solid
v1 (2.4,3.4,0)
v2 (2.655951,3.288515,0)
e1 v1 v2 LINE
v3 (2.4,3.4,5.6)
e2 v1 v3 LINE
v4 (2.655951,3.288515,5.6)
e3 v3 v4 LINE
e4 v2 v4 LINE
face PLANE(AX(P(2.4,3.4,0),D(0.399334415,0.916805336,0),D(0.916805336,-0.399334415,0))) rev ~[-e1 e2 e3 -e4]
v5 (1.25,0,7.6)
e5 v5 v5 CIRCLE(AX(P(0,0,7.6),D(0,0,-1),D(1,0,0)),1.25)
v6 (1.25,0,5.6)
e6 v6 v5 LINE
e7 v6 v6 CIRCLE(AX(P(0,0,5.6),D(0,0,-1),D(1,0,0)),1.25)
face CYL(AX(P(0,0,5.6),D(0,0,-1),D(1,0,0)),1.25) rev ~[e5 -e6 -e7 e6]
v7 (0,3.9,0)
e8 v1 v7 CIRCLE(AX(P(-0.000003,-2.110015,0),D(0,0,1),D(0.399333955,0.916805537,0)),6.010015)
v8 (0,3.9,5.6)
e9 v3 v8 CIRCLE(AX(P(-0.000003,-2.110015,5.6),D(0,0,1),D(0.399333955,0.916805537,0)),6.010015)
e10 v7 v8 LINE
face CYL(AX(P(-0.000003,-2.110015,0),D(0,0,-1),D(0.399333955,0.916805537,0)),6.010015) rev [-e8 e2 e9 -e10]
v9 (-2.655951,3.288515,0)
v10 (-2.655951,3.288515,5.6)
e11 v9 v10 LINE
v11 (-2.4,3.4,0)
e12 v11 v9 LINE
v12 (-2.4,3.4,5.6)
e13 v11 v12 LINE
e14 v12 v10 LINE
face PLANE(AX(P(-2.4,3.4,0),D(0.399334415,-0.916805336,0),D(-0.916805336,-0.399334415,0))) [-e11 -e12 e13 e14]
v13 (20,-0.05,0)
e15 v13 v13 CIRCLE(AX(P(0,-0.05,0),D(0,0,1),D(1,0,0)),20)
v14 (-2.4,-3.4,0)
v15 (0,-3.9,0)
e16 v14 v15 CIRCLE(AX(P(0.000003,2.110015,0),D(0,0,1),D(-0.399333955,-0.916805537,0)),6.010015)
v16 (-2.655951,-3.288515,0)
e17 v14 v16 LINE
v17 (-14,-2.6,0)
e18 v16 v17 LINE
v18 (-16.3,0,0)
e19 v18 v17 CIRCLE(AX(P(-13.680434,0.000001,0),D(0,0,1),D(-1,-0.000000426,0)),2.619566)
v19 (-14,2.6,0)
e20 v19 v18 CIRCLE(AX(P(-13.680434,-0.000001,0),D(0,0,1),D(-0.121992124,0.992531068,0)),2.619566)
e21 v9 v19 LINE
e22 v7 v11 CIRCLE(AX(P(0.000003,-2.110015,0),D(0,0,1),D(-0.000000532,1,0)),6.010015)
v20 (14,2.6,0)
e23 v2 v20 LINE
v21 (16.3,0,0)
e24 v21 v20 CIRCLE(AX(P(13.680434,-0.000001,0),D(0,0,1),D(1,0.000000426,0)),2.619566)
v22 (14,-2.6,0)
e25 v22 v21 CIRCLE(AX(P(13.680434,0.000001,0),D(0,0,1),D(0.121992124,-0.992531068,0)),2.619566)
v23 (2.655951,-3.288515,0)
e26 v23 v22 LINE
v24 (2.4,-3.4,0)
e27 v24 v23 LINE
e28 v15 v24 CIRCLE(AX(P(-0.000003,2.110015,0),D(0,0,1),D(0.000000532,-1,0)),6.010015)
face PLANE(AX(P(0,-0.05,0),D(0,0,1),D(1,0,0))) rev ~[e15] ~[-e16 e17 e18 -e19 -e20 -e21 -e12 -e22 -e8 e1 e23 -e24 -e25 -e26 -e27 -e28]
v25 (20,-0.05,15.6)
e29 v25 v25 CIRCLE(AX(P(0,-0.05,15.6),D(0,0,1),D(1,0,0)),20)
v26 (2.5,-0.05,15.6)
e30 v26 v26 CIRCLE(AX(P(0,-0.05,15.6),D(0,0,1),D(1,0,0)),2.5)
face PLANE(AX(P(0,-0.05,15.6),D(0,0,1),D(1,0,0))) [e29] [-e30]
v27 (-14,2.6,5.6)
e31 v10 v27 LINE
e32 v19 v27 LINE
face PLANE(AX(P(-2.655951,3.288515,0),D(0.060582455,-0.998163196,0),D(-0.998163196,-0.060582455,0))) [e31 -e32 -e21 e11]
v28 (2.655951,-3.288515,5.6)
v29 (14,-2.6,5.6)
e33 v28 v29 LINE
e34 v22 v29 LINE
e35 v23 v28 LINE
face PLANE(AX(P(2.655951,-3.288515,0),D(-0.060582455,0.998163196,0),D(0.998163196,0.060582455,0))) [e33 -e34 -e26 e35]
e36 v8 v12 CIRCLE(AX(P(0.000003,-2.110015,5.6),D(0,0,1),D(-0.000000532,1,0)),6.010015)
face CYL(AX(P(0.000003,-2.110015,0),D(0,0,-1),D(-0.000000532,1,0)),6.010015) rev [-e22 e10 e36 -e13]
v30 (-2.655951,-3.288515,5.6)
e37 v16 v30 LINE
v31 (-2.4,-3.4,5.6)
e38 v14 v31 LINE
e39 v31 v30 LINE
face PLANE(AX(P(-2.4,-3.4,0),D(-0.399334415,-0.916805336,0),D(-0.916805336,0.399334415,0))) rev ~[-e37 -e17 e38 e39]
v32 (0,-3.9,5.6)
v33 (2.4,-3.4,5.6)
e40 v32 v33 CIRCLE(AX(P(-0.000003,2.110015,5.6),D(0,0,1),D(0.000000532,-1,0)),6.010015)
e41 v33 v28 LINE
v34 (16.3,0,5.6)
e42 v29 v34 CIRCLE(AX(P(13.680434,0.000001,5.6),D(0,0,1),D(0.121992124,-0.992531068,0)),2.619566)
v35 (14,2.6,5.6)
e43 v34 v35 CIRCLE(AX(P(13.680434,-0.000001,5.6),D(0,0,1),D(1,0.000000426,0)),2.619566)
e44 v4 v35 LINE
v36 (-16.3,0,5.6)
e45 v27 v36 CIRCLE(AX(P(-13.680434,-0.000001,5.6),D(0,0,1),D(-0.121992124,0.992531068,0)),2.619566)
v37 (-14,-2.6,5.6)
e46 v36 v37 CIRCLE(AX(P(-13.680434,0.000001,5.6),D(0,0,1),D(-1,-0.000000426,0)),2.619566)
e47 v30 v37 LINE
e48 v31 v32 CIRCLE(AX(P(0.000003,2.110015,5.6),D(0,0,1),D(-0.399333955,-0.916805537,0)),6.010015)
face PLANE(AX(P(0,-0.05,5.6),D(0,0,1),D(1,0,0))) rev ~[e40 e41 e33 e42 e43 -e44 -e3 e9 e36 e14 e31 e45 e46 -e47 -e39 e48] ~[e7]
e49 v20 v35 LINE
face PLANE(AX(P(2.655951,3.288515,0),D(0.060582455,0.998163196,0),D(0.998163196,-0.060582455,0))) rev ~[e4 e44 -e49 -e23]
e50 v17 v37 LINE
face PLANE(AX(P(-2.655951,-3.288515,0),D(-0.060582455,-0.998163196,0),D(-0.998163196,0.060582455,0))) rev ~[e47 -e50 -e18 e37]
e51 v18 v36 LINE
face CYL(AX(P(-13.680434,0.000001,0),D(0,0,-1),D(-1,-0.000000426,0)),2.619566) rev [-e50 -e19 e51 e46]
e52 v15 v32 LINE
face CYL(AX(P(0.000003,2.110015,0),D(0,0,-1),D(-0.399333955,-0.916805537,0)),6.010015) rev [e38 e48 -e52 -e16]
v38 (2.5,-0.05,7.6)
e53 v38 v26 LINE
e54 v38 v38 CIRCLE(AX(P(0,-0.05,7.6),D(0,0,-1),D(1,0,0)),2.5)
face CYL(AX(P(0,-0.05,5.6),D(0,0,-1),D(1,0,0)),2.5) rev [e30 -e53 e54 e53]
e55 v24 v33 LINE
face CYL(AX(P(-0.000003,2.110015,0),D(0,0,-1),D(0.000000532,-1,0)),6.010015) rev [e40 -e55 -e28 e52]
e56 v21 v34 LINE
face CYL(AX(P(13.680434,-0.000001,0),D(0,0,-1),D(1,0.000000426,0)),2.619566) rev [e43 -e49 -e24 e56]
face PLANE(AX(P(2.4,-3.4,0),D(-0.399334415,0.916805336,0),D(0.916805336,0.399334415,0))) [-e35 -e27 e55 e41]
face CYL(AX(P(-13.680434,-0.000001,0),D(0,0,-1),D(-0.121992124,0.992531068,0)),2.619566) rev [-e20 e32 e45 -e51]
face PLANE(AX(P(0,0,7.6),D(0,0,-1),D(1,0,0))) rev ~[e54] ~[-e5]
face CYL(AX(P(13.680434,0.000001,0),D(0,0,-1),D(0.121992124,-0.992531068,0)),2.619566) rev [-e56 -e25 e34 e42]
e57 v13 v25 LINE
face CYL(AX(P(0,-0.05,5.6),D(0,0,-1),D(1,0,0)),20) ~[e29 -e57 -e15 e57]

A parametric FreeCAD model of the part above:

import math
import FreeCAD as App
import Part
import Sketcher

doc = App.newDocument("Part")
params = doc.addObject("Spreadsheet::Sheet", "Params")
for row, (alias, value) in enumerate([
    ("sketch1_diameter", "40 mm"),
    ("pad1_length", "5.6 mm"),
    ("sketch2_diameter", "40 mm"),
    ("sketch2_diameter2", "5 mm"),
    ("pad2_length", "10 mm"),
    ("sketch3_diameter", "2.5 mm"),
    ("sketch3_diameter2", "6.14 mm"),
    ("pad3_length", "2 mm"),
], start=1):
    params.set(f"A{row}", alias)
    params.set(f"B{row}", "=" + value)
    params.setAlias(f"B{row}", alias)

body = doc.addObject("PartDesign::Body", "Body")

sketch1 = doc.addObject("Sketcher::SketchObject", "Sketch")
body.addObject(sketch1)
sketch1.AttachmentSupport = (doc.XY_Plane, [""])
sketch1.MapMode = "FlatFace"
sketch1.addGeometry(Part.Circle(App.Vector(0, -0.05, 0), App.Vector(0, 0, 1), 20), False)
sketch1.addGeometry(Part.ArcOfCircle(Part.Circle(App.Vector(0.000003, -2.110015, 0), App.Vector(0, 0, 1), 6.010015), math.radians(90.00003), math.radians(113.536547)), False)
sketch1.addGeometry(Part.ArcOfCircle(Part.Circle(App.Vector(-0.000003, -2.110015, 0), App.Vector(0, 0, 1), 6.010015), math.radians(66.463453), math.radians(89.99997)), False)
sketch1.addGeometry(Part.LineSegment(App.Vector(2.4, 3.4, 0), App.Vector(2.655951, 3.288515, 0)), False)
sketch1.addGeometry(Part.LineSegment(App.Vector(2.655951, 3.288515, 0), App.Vector(14, 2.6, 0)), False)
sketch1.addGeometry(Part.ArcOfCircle(Part.Circle(App.Vector(13.680434, -0.000001, 0), App.Vector(0, 0, 1), 2.619566), math.radians(0.000024), math.radians(82.992912)), False)
sketch1.addGeometry(Part.ArcOfCircle(Part.Circle(App.Vector(13.680434, 0.000001, 0), App.Vector(0, 0, 1), 2.619566), math.radians(-82.992912), math.radians(-0.000024)), False)
sketch1.addGeometry(Part.LineSegment(App.Vector(14, -2.6, 0), App.Vector(2.655951, -3.288515, 0)), False)
sketch1.addGeometry(Part.LineSegment(App.Vector(2.655951, -3.288515, 0), App.Vector(2.4, -3.4, 0)), False)
sketch1.addGeometry(Part.ArcOfCircle(Part.Circle(App.Vector(-0.000003, 2.110015, 0), App.Vector(0, 0, 1), 6.010015), math.radians(-89.99997), math.radians(-66.463453)), False)
sketch1.addGeometry(Part.ArcOfCircle(Part.Circle(App.Vector(0.000003, 2.110015, 0), App.Vector(0, 0, 1), 6.010015), math.radians(-113.536547), math.radians(-90.00003)), False)
sketch1.addGeometry(Part.LineSegment(App.Vector(-2.4, -3.4, 0), App.Vector(-2.655951, -3.288515, 0)), False)
sketch1.addGeometry(Part.LineSegment(App.Vector(-2.655951, -3.288515, 0), App.Vector(-14, -2.6, 0)), False)
sketch1.addGeometry(Part.ArcOfCircle(Part.Circle(App.Vector(-13.680434, 0.000001, 0), App.Vector(0, 0, 1), 2.619566), math.radians(-179.999976), math.radians(-97.007088)), False)
sketch1.addGeometry(Part.ArcOfCircle(Part.Circle(App.Vector(-13.680434, -0.000001, 0), App.Vector(0, 0, 1), 2.619566), math.radians(97.007088), math.radians(179.999976)), False)
sketch1.addGeometry(Part.LineSegment(App.Vector(-14, 2.6, 0), App.Vector(-2.655951, 3.288515, 0)), False)
sketch1.addGeometry(Part.LineSegment(App.Vector(-2.655951, 3.288515, 0), App.Vector(-2.4, 3.4, 0)), False)
sketch1.addConstraint(Sketcher.Constraint("Coincident", 1, 1, 2, 2))
sketch1.addConstraint(Sketcher.Constraint("Coincident", 2, 1, 3, 1))
sketch1.addConstraint(Sketcher.Constraint("Coincident", 3, 2, 4, 1))
sketch1.addConstraint(Sketcher.Constraint("Coincident", 4, 2, 5, 2))
sketch1.addConstraint(Sketcher.Constraint("Coincident", 5, 1, 6, 2))
sketch1.addConstraint(Sketcher.Constraint("Coincident", 6, 1, 7, 1))
sketch1.addConstraint(Sketcher.Constraint("Coincident", 7, 2, 8, 1))
sketch1.addConstraint(Sketcher.Constraint("Coincident", 8, 2, 9, 2))
sketch1.addConstraint(Sketcher.Constraint("Coincident", 9, 1, 10, 2))
sketch1.addConstraint(Sketcher.Constraint("Coincident", 10, 1, 11, 1))
sketch1.addConstraint(Sketcher.Constraint("Coincident", 11, 2, 12, 1))
sketch1.addConstraint(Sketcher.Constraint("Coincident", 12, 2, 13, 2))
sketch1.addConstraint(Sketcher.Constraint("Coincident", 13, 1, 14, 2))
sketch1.addConstraint(Sketcher.Constraint("Coincident", 14, 1, 15, 1))
sketch1.addConstraint(Sketcher.Constraint("Coincident", 15, 2, 16, 1))
sketch1.addConstraint(Sketcher.Constraint("Coincident", 16, 2, 1, 2))
sketch1.addConstraint(Sketcher.Constraint("Coincident", 2, 3, 1, 3))
sketch1.addConstraint(Sketcher.Constraint("Coincident", 6, 3, 5, 3))
sketch1.addConstraint(Sketcher.Constraint("Coincident", 10, 3, 9, 3))
sketch1.addConstraint(Sketcher.Constraint("Coincident", 14, 3, 13, 3))
sketch1.addConstraint(Sketcher.Constraint("PointOnObject", 0, 3, -2))
sketch1.addConstraint(Sketcher.Constraint("PointOnObject", 5, 3, -1))
sketch1.addConstraint(Sketcher.Constraint("PointOnObject", 13, 3, -1))
sketch1.addConstraint(Sketcher.Constraint("PointOnObject", 1, 1, -2))
sketch1.addConstraint(Sketcher.Constraint("PointOnObject", 5, 1, -1))
sketch1.addConstraint(Sketcher.Constraint("PointOnObject", 9, 1, -2))
sketch1.addConstraint(Sketcher.Constraint("PointOnObject", 13, 1, -1))
sketch1.addConstraint(Sketcher.Constraint("Diameter", 0, 40.0))
sketch1.addConstraint(Sketcher.Constraint("DistanceX", -1, 1, 4, 2, 14.0))
sketch1.addConstraint(Sketcher.Constraint("DistanceX", -1, 1, 6, 1, 14.0))
sketch1.addConstraint(Sketcher.Constraint("DistanceX", 12, 2, -1, 1, 14.0))
sketch1.addConstraint(Sketcher.Constraint("DistanceX", 14, 1, -1, 1, 14.0))
sketch1.addConstraint(Sketcher.Constraint("DistanceY", -1, 1, 1, 1, 3.9))
sketch1.addConstraint(Sketcher.Constraint("DistanceX", -1, 1, 2, 1, 2.4))
sketch1.addConstraint(Sketcher.Constraint("DistanceY", -1, 1, 2, 1, 3.4))
sketch1.addConstraint(Sketcher.Constraint("DistanceY", -1, 1, 4, 2, 2.6))
sketch1.addConstraint(Sketcher.Constraint("DistanceX", -1, 1, 5, 1, 16.3))
sketch1.addConstraint(Sketcher.Constraint("DistanceX", -1, 1, 8, 2, 2.4))
sketch1.addConstraint(Sketcher.Constraint("DistanceY", 8, 2, -1, 1, 3.4))
sketch1.addConstraint(Sketcher.Constraint("DistanceY", 9, 1, -1, 1, 3.9))
sketch1.addConstraint(Sketcher.Constraint("DistanceX", 10, 1, -1, 1, 2.4))
sketch1.addConstraint(Sketcher.Constraint("DistanceY", 10, 1, -1, 1, 3.4))
sketch1.addConstraint(Sketcher.Constraint("DistanceY", 12, 2, -1, 1, 2.6))
sketch1.addConstraint(Sketcher.Constraint("DistanceX", 13, 1, -1, 1, 16.3))
sketch1.addConstraint(Sketcher.Constraint("DistanceX", 16, 2, -1, 1, 2.4))
sketch1.addConstraint(Sketcher.Constraint("DistanceY", -1, 1, 16, 2, 3.4))
sketch1.addConstraint(Sketcher.Constraint("DistanceY", 0, 3, -1, 1, 0.05))
sketch1.addConstraint(Sketcher.Constraint("DistanceY", 10, 3, 3, 2, 1.1785))
sketch1.addConstraint(Sketcher.Constraint("DistanceY", 7, 2, 1, 3, 1.1785))
sketch1.addConstraint(Sketcher.Constraint("DistanceY", 11, 2, 2, 3, 1.1785))
sketch1.addConstraint(Sketcher.Constraint("DistanceY", 9, 3, 15, 2, 1.1785))
sketch1.addConstraint(Sketcher.Constraint("DistanceX", -1, 1, 3, 2, 2.655951))
sketch1.addConstraint(Sketcher.Constraint("DistanceX", -1, 1, 7, 2, 2.655951))
sketch1.addConstraint(Sketcher.Constraint("DistanceX", 11, 2, -1, 1, 2.655951))
sketch1.addConstraint(Sketcher.Constraint("DistanceX", 15, 2, -1, 1, 2.655951))
sketch1.setExpression("Constraints[27]", "Params.sketch1_diameter")
pad1 = doc.addObject("PartDesign::Pad", "Pad")
body.addObject(pad1)
pad1.Profile = sketch1
pad1.setExpression("Length", "Params.pad1_length")

sketch2 = doc.addObject("Sketcher::SketchObject", "Sketch001")
body.addObject(sketch2)
sketch2.AttachmentSupport = (doc.XY_Plane, [""])
sketch2.MapMode = "FlatFace"
sketch2.AttachmentOffset = App.Placement(App.Vector(0, 0, 5.6), App.Rotation())
sketch2.addGeometry(Part.Circle(App.Vector(0, -0.1, 0), App.Vector(0, 0, 1), 20), False)
sketch2.addGeometry(Part.Circle(App.Vector(0, -0.1, 0), App.Vector(0, 0, 1), 2.5), False)
sketch2.addConstraint(Sketcher.Constraint("Coincident", 1, 3, 0, 3))
sketch2.addConstraint(Sketcher.Constraint("PointOnObject", 0, 3, -2))
sketch2.addConstraint(Sketcher.Constraint("Diameter", 0, 40.0))
sketch2.addConstraint(Sketcher.Constraint("Diameter", 1, 5.0))
sketch2.addConstraint(Sketcher.Constraint("DistanceY", 0, 3, -1, 1, 0.05))
sketch2.setExpression("Constraints[2]", "Params.sketch2_diameter")
sketch2.setExpression("Constraints[3]", "Params.sketch2_diameter2")
pad2 = doc.addObject("PartDesign::Pad", "Pad001")
body.addObject(pad2)
pad2.Profile = sketch2
pad2.setExpression("Length", "Params.pad2_length")

sketch3 = doc.addObject("Sketcher::SketchObject", "Sketch002")
body.addObject(sketch3)
sketch3.AttachmentSupport = (doc.XY_Plane, [""])
sketch3.MapMode = "FlatFace"
sketch3.AttachmentOffset = App.Placement(App.Vector(0, 0, 5.6), App.Rotation())
sketch3.addGeometry(Part.Circle(App.Vector(0, 0, 0), App.Vector(0, 0, 1), 3.1), False)
sketch3.addGeometry(Part.Circle(App.Vector(0, 0, 0), App.Vector(0, 0, 1), 1.2), False)
sketch3.addConstraint(Sketcher.Constraint("Coincident", 0, 3, -1, 1))
sketch3.addConstraint(Sketcher.Constraint("Coincident", 1, 3, -1, 1))
sketch3.addConstraint(Sketcher.Constraint("Diameter", 1, 2.5))
sketch3.addConstraint(Sketcher.Constraint("Diameter", 0, 6.14))
sketch3.setExpression("Constraints[2]", "Params.sketch3_diameter")
sketch3.setExpression("Constraints[3]", "Params.sketch3_diameter2")
pad3 = doc.addObject("PartDesign::Pad", "Pad002")
body.addObject(pad3)
pad3.Profile = sketch3
pad3.setExpression("Length", "Params.pad3_length")

doc.recompute()
